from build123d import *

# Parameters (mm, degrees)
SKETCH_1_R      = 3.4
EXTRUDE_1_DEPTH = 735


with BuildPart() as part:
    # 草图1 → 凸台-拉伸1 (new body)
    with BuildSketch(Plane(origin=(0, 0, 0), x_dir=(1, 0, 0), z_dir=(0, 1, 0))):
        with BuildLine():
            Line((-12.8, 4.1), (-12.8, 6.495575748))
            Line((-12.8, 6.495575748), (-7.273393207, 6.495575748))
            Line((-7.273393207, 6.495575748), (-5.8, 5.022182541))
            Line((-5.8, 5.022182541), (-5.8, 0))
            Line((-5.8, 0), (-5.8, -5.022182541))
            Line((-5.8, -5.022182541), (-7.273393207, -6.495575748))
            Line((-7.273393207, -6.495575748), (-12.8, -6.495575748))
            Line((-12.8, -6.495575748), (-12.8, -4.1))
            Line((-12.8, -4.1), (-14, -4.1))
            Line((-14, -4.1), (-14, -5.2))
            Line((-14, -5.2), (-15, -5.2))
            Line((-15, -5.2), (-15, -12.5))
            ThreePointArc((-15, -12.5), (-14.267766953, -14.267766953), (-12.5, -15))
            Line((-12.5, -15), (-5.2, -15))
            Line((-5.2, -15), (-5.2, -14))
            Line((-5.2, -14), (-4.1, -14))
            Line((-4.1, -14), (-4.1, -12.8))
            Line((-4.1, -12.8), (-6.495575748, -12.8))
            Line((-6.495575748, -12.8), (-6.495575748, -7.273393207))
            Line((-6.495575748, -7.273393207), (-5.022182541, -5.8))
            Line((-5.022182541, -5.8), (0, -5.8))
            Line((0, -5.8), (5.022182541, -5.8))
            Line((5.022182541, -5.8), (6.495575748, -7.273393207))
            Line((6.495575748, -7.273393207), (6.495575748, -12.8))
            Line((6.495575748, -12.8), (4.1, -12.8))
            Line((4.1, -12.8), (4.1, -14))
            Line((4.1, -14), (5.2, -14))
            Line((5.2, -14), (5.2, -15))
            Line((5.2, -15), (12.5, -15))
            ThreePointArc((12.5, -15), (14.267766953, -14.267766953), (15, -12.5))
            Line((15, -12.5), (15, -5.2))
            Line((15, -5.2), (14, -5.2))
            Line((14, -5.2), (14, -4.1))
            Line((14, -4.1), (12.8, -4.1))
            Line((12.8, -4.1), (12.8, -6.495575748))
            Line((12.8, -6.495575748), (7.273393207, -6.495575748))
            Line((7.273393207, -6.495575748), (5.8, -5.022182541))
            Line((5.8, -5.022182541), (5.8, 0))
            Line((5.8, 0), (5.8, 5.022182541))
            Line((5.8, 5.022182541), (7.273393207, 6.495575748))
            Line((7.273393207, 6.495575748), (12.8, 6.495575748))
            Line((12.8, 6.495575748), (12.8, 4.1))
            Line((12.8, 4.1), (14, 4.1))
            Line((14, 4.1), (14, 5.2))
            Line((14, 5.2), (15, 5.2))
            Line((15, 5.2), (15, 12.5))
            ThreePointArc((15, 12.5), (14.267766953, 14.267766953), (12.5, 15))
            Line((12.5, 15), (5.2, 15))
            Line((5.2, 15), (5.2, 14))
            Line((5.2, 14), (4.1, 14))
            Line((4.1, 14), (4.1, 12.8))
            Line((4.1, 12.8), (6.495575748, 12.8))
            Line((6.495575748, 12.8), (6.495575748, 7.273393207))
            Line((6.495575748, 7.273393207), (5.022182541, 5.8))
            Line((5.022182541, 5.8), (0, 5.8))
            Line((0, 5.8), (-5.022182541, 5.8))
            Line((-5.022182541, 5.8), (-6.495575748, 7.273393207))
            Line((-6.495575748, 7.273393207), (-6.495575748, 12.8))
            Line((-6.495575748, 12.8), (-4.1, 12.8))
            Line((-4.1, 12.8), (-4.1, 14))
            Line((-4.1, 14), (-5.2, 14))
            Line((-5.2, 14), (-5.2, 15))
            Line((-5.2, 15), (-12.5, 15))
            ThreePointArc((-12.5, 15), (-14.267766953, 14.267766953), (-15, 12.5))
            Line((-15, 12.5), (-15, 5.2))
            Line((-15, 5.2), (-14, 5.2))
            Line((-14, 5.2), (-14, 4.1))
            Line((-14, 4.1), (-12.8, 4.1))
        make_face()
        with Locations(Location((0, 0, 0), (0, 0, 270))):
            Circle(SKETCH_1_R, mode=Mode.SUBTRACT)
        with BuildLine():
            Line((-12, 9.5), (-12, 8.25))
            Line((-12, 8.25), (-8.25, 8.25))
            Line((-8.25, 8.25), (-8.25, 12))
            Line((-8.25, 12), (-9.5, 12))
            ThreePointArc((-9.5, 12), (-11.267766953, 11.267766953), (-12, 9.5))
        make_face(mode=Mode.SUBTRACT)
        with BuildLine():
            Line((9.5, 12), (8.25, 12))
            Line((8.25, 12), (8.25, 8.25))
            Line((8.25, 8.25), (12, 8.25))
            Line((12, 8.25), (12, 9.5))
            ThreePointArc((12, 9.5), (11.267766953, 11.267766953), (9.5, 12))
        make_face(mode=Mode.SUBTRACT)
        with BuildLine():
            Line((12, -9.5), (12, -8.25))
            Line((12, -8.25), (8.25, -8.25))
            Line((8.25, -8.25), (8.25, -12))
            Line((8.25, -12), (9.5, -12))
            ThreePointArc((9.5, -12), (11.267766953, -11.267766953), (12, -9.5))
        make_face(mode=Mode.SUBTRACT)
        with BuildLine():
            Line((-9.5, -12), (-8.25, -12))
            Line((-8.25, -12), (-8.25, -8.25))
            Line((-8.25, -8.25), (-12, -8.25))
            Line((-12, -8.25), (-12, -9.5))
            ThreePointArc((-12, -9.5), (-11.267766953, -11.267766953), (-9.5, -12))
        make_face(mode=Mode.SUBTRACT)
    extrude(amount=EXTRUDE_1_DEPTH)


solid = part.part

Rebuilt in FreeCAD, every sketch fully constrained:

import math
import FreeCAD as App
import Part
import Sketcher
from FreeCAD import Vector

doc = App.newDocument("Part")
body = doc.addObject("PartDesign::Body", "Body")

sketch1 = doc.addObject("Sketcher::SketchObject", "Sketch")
body.addObject(sketch1)
sketch1.AttachmentSupport = (doc.XZ_Plane, [""])
sketch1.MapMode = "FlatFace"
sketch1.addGeometry([
    Part.LineSegment(Vector(-12.8, -4.1, 0), Vector(-12.8, -6.5, 0)),
    Part.LineSegment(Vector(-12.8, -6.5, 0), Vector(-7.3, -6.5, 0)),
    Part.LineSegment(Vector(-7.3, -6.5, 0), Vector(-5.8, -5, 0)),
    Part.LineSegment(Vector(-5.8, -5, 0), Vector(-5.8, 5, 0)),
    Part.LineSegment(Vector(-5.8, 5, 0), Vector(-7.3, 6.5, 0)),
    Part.LineSegment(Vector(-7.3, 6.5, 0), Vector(-12.8, 6.5, 0)),
    Part.LineSegment(Vector(-12.8, 6.5, 0), Vector(-12.8, 4.1, 0)),
    Part.LineSegment(Vector(-12.8, 4.1, 0), Vector(-14, 4.1, 0)),
    Part.LineSegment(Vector(-14, 4.1, 0), Vector(-14, 5.2, 0)),
    Part.LineSegment(Vector(-14, 5.2, 0), Vector(-15, 5.2, 0)),
    Part.LineSegment(Vector(-15, 5.2, 0), Vector(-15, 12.5, 0)),
    Part.ArcOfCircle(Part.Circle(Vector(-12.5, 12.5, 0), Vector(0, 0, 1), 2.5), math.radians(90), math.radians(180)),
    Part.LineSegment(Vector(-12.5, 15, 0), Vector(-5.2, 15, 0)),
    Part.LineSegment(Vector(-5.2, 15, 0), Vector(-5.2, 14, 0)),
    Part.LineSegment(Vector(-5.2, 14, 0), Vector(-4.1, 14, 0)),
    Part.LineSegment(Vector(-4.1, 14, 0), Vector(-4.1, 12.8, 0)),
    Part.LineSegment(Vector(-4.1, 12.8, 0), Vector(-6.5, 12.8, 0)),
    Part.LineSegment(Vector(-6.5, 12.8, 0), Vector(-6.5, 7.3, 0)),
    Part.LineSegment(Vector(-6.5, 7.3, 0), Vector(-5, 5.8, 0)),
    Part.LineSegment(Vector(-5, 5.8, 0), Vector(5, 5.8, 0)),
    Part.LineSegment(Vector(5, 5.8, 0), Vector(6.5, 7.3, 0)),
    Part.LineSegment(Vector(6.5, 7.3, 0), Vector(6.5, 12.8, 0)),
    Part.LineSegment(Vector(6.5, 12.8, 0), Vector(4.1, 12.8, 0)),
    Part.LineSegment(Vector(4.1, 12.8, 0), Vector(4.1, 14, 0)),
    Part.LineSegment(Vector(4.1, 14, 0), Vector(5.2, 14, 0)),
    Part.LineSegment(Vector(5.2, 14, 0), Vector(5.2, 15, 0)),
    Part.LineSegment(Vector(5.2, 15, 0), Vector(12.5, 15, 0)),
    Part.ArcOfCircle(Part.Circle(Vector(12.5, 12.5, 0), Vector(0, 0, 1), 2.5), math.radians(0), math.radians(90)),
    Part.LineSegment(Vector(15, 12.5, 0), Vector(15, 5.2, 0)),
    Part.LineSegment(Vector(15, 5.2, 0), Vector(14, 5.2, 0)),
    Part.LineSegment(Vector(14, 5.2, 0), Vector(14, 4.1, 0)),
    Part.LineSegment(Vector(14, 4.1, 0), Vector(12.8, 4.1, 0)),
    Part.LineSegment(Vector(12.8, 4.1, 0), Vector(12.8, 6.5, 0)),
    Part.LineSegment(Vector(12.8, 6.5, 0), Vector(7.3, 6.5, 0)),
    Part.LineSegment(Vector(7.3, 6.5, 0), Vector(5.8, 5, 0)),
    Part.LineSegment(Vector(5.8, 5, 0), Vector(5.8, -5, 0)),
    Part.LineSegment(Vector(5.8, -5, 0), Vector(7.3, -6.5, 0)),
    Part.LineSegment(Vector(7.3, -6.5, 0), Vector(12.8, -6.5, 0)),
    Part.LineSegment(Vector(12.8, -6.5, 0), Vector(12.8, -4.1, 0)),
    Part.LineSegment(Vector(12.8, -4.1, 0), Vector(14, -4.1, 0)),
    Part.LineSegment(Vector(14, -4.1, 0), Vector(14, -5.2, 0)),
    Part.LineSegment(Vector(14, -5.2, 0), Vector(15, -5.2, 0)),
    Part.LineSegment(Vector(15, -5.2, 0), Vector(15, -12.5, 0)),
    Part.ArcOfCircle(Part.Circle(Vector(12.5, -12.5, 0), Vector(0, 0, 1), 2.5), math.radians(-90), math.radians(0)),
    Part.LineSegment(Vector(12.5, -15, 0), Vector(5.2, -15, 0)),
    Part.LineSegment(Vector(5.2, -15, 0), Vector(5.2, -14, 0)),
    Part.LineSegment(Vector(5.2, -14, 0), Vector(4.1, -14, 0)),
    Part.LineSegment(Vector(4.1, -14, 0), Vector(4.1, -12.8, 0)),
    Part.LineSegment(Vector(4.1, -12.8, 0), Vector(6.5, -12.8, 0)),
    Part.LineSegment(Vector(6.5, -12.8, 0), Vector(6.5, -7.3, 0)),
    Part.LineSegment(Vector(6.5, -7.3, 0), Vector(5, -5.8, 0)),
    Part.LineSegment(Vector(5, -5.8, 0), Vector(-5, -5.8, 0)),
    Part.LineSegment(Vector(-5, -5.8, 0), Vector(-6.5, -7.3, 0)),
    Part.LineSegment(Vector(-6.5, -7.3, 0), Vector(-6.5, -12.8, 0)),
    Part.LineSegment(Vector(-6.5, -12.8, 0), Vector(-4.1, -12.8, 0)),
    Part.LineSegment(Vector(-4.1, -12.8, 0), Vector(-4.1, -14, 0)),
    Part.LineSegment(Vector(-4.1, -14, 0), Vector(-5.2, -14, 0)),
    Part.LineSegment(Vector(-5.2, -14, 0), Vector(-5.2, -15, 0)),
    Part.LineSegment(Vector(-5.2, -15, 0), Vector(-12.5, -15, 0)),
    Part.ArcOfCircle(Part.Circle(Vector(-12.5, -12.5, 0), Vector(0, 0, 1), 2.5), math.radians(180), math.radians(270)),
    Part.LineSegment(Vector(-15, -12.5, 0), Vector(-15, -5.2, 0)),
    Part.LineSegment(Vector(-15, -5.2, 0), Vector(-14, -5.2, 0)),
    Part.LineSegment(Vector(-14, -5.2, 0), Vector(-14, -4.1, 0)),
    Part.LineSegment(Vector(-14, -4.1, 0), Vector(-12.8, -4.1, 0)),
    Part.LineSegment(Vector(-8.2, 12, 0), Vector(-9.5, 12, 0)),
    Part.ArcOfCircle(Part.Circle(Vector(-9.5, 9.5, 0), Vector(0, 0, 1), 2.5), math.radians(90), math.radians(180)),
    Part.LineSegment(Vector(-12, 9.5, 0), Vector(-12, 8.2, 0)),
    Part.LineSegment(Vector(-12, 8.2, 0), Vector(-8.2, 8.2, 0)),
    Part.LineSegment(Vector(-8.2, 8.2, 0), Vector(-8.2, 12, 0)),
    Part.LineSegment(Vector(12, 8.2, 0), Vector(12, 9.5, 0)),
    Part.ArcOfCircle(Part.Circle(Vector(9.5, 9.5, 0), Vector(0, 0, 1), 2.5), math.radians(0), math.radians(90)),
    Part.LineSegment(Vector(9.5, 12, 0), Vector(8.2, 12, 0)),
    Part.LineSegment(Vector(8.2, 12, 0), Vector(8.2, 8.2, 0)),
    Part.LineSegment(Vector(8.2, 8.2, 0), Vector(12, 8.2, 0)),
    Part.LineSegment(Vector(-12, -8.2, 0), Vector(-12, -9.5, 0)),
    Part.ArcOfCircle(Part.Circle(Vector(-9.5, -9.5, 0), Vector(0, 0, 1), 2.5), math.radians(180), math.radians(270)),
    Part.LineSegment(Vector(-9.5, -12, 0), Vector(-8.2, -12, 0)),
    Part.LineSegment(Vector(-8.2, -12, 0), Vector(-8.2, -8.2, 0)),
    Part.LineSegment(Vector(-8.2, -8.2, 0), Vector(-12, -8.2, 0)),
    Part.Circle(Vector(0, 0, 0), Vector(0, 0, 1), 3.4),
    Part.LineSegment(Vector(8.2, -12, 0), Vector(9.5, -12, 0)),
    Part.ArcOfCircle(Part.Circle(Vector(9.5, -9.5, 0), Vector(0, 0, 1), 2.5), math.radians(-90), math.radians(0)),
    Part.LineSegment(Vector(12, -9.5, 0), Vector(12, -8.2, 0)),
    Part.LineSegment(Vector(12, -8.2, 0), Vector(8.2, -8.2, 0)),
    Part.LineSegment(Vector(8.2, -8.2, 0), Vector(8.2, -12, 0)),
], False)
sketch1.addConstraint([
    Sketcher.Constraint("Coincident", 0, 2, 1, 1),
    Sketcher.Constraint("Coincident", 1, 2, 2, 1),
    Sketcher.Constraint("Coincident", 2, 2, 3, 1),
    Sketcher.Constraint("Coincident", 3, 2, 4, 1),
    Sketcher.Constraint("Coincident", 4, 2, 5, 1),
    Sketcher.Constraint("Coincident", 5, 2, 6, 1),
    Sketcher.Constraint("Coincident", 6, 2, 7, 1),
    Sketcher.Constraint("Coincident", 7, 2, 8, 1),
    Sketcher.Constraint("Coincident", 8, 2, 9, 1),
    Sketcher.Constraint("Coincident", 9, 2, 10, 1),
    Sketcher.Constraint("Tangent", 10, 2, 11, 2),
    Sketcher.Constraint("Tangent", 11, 1, 12, 1),
    Sketcher.Constraint("Coincident", 12, 2, 13, 1),
    Sketcher.Constraint("Coincident", 13, 2, 14, 1),
    Sketcher.Constraint("Coincident", 14, 2, 15, 1),
    Sketcher.Constraint("Coincident", 15, 2, 16, 1),
    Sketcher.Constraint("Coincident", 16, 2, 17, 1),
    Sketcher.Constraint("Coincident", 17, 2, 18, 1),
    Sketcher.Constraint("Coincident", 18, 2, 19, 1),
    Sketcher.Constraint("Coincident", 19, 2, 20, 1),
    Sketcher.Constraint("Coincident", 20, 2, 21, 1),
    Sketcher.Constraint("Coincident", 21, 2, 22, 1),
    Sketcher.Constraint("Coincident", 22, 2, 23, 1),
    Sketcher.Constraint("Coincident", 23, 2, 24, 1),
    Sketcher.Constraint("Coincident", 24, 2, 25, 1),
    Sketcher.Constraint("Coincident", 25, 2, 26, 1),
    Sketcher.Constraint("Tangent", 26, 2, 27, 2),
    Sketcher.Constraint("Tangent", 27, 1, 28, 1),
    Sketcher.Constraint("Coincident", 28, 2, 29, 1),
    Sketcher.Constraint("Coincident", 29, 2, 30, 1),
    Sketcher.Constraint("Coincident", 30, 2, 31, 1),
    Sketcher.Constraint("Coincident", 31, 2, 32, 1),
    Sketcher.Constraint("Coincident", 32, 2, 33, 1),
    Sketcher.Constraint("Coincident", 33, 2, 34, 1),
    Sketcher.Constraint("Coincident", 34, 2, 35, 1),
    Sketcher.Constraint("Coincident", 35, 2, 36, 1),
    Sketcher.Constraint("Coincident", 36, 2, 37, 1),
    Sketcher.Constraint("Coincident", 37, 2, 38, 1),
    Sketcher.Constraint("Coincident", 38, 2, 39, 1),
    Sketcher.Constraint("Coincident", 39, 2, 40, 1),
    Sketcher.Constraint("Coincident", 40, 2, 41, 1),
    Sketcher.Constraint("Coincident", 41, 2, 42, 1),
    Sketcher.Constraint("Tangent", 42, 2, 43, 2),
    Sketcher.Constraint("Tangent", 43, 1, 44, 1),
    Sketcher.Constraint("Coincident", 44, 2, 45, 1),
    Sketcher.Constraint("Coincident", 45, 2, 46, 1),
    Sketcher.Constraint("Coincident", 46, 2, 47, 1),
    Sketcher.Constraint("Coincident", 47, 2, 48, 1),
    Sketcher.Constraint("Coincident", 48, 2, 49, 1),
    Sketcher.Constraint("Coincident", 49, 2, 50, 1),
    Sketcher.Constraint("Coincident", 50, 2, 51, 1),
    Sketcher.Constraint("Coincident", 51, 2, 52, 1),
    Sketcher.Constraint("Coincident", 52, 2, 53, 1),
    Sketcher.Constraint("Coincident", 53, 2, 54, 1),
    Sketcher.Constraint("Coincident", 54, 2, 55, 1),
    Sketcher.Constraint("Coincident", 55, 2, 56, 1),
    Sketcher.Constraint("Coincident", 56, 2, 57, 1),
    Sketcher.Constraint("Coincident", 57, 2, 58, 1),
    Sketcher.Constraint("Tangent", 58, 2, 59, 2),
    Sketcher.Constraint("Tangent", 59, 1, 60, 1),
    Sketcher.Constraint("Coincident", 60, 2, 61, 1),
    Sketcher.Constraint("Coincident", 61, 2, 62, 1),
    Sketcher.Constraint("Coincident", 62, 2, 63, 1),
    Sketcher.Constraint("Coincident", 63, 2, 0, 1),
    Sketcher.Constraint("Tangent", 64, 2, 65, 1),
    Sketcher.Constraint("Tangent", 65, 2, 66, 1),
    Sketcher.Constraint("Coincident", 66, 2, 67, 1),
    Sketcher.Constraint("Coincident", 67, 2, 68, 1),
    Sketcher.Constraint("Coincident", 68, 2, 64, 1),
    Sketcher.Constraint("Tangent", 69, 2, 70, 1),
    Sketcher.Constraint("Tangent", 70, 2, 71, 1),
    Sketcher.Constraint("Coincident", 71, 2, 72, 1),
    Sketcher.Constraint("Coincident", 72, 2, 73, 1),
    Sketcher.Constraint("Coincident", 73, 2, 69, 1),
    Sketcher.Constraint("Tangent", 74, 2, 75, 1),
    Sketcher.Constraint("Tangent", 75, 2, 76, 1),
    Sketcher.Constraint("Coincident", 76, 2, 77, 1),
    Sketcher.Constraint("Coincident", 77, 2, 78, 1),
    Sketcher.Constraint("Coincident", 78, 2, 74, 1),
    Sketcher.Constraint("Tangent", 80, 2, 81, 1),
    Sketcher.Constraint("Tangent", 81, 2, 82, 1),
    Sketcher.Constraint("Coincident", 82, 2, 83, 1),
    Sketcher.Constraint("Coincident", 83, 2, 84, 1),
    Sketcher.Constraint("Coincident", 84, 2, 80, 1),
    Sketcher.Constraint("Vertical", 0),
    Sketcher.Constraint("Horizontal", 1),
    Sketcher.Constraint("Vertical", 3),
    Sketcher.Constraint("Horizontal", 5),
    Sketcher.Constraint("Vertical", 6),
    Sketcher.Constraint("Horizontal", 7),
    Sketcher.Constraint("Vertical", 8),
    Sketcher.Constraint("Horizontal", 9),
    Sketcher.Constraint("Vertical", 10),
    Sketcher.Constraint("Horizontal", 12),
    Sketcher.Constraint("Vertical", 13),
    Sketcher.Constraint("Horizontal", 14),
    Sketcher.Constraint("Vertical", 15),
    Sketcher.Constraint("Horizontal", 16),
    Sketcher.Constraint("Vertical", 17),
    Sketcher.Constraint("Horizontal", 19),
    Sketcher.Constraint("Vertical", 21),
    Sketcher.Constraint("Horizontal", 22),
    Sketcher.Constraint("Vertical", 23),
    Sketcher.Constraint("Horizontal", 24),
    Sketcher.Constraint("Vertical", 25),
    Sketcher.Constraint("Horizontal", 26),
    Sketcher.Constraint("Vertical", 28),
    Sketcher.Constraint("Horizontal", 29),
    Sketcher.Constraint("Vertical", 30),
    Sketcher.Constraint("Horizontal", 31),
    Sketcher.Constraint("Vertical", 32),
    Sketcher.Constraint("Horizontal", 33),
    Sketcher.Constraint("Vertical", 35),
    Sketcher.Constraint("Horizontal", 37),
    Sketcher.Constraint("Vertical", 38),
    Sketcher.Constraint("Horizontal", 39),
    Sketcher.Constraint("Vertical", 40),
    Sketcher.Constraint("Horizontal", 41),
    Sketcher.Constraint("Vertical", 42),
    Sketcher.Constraint("Horizontal", 44),
    Sketcher.Constraint("Vertical", 45),
    Sketcher.Constraint("Horizontal", 46),
    Sketcher.Constraint("Vertical", 47),
    Sketcher.Constraint("Horizontal", 48),
    Sketcher.Constraint("Vertical", 49),
    Sketcher.Constraint("Horizontal", 51),
    Sketcher.Constraint("Vertical", 53),
    Sketcher.Constraint("Horizontal", 54),
    Sketcher.Constraint("Vertical", 55),
    Sketcher.Constraint("Horizontal", 56),
    Sketcher.Constraint("Vertical", 57),
    Sketcher.Constraint("Horizontal", 58),
    Sketcher.Constraint("Vertical", 60),
    Sketcher.Constraint("Horizontal", 61),
    Sketcher.Constraint("Vertical", 62),
    Sketcher.Constraint("Horizontal", 63),
    Sketcher.Constraint("Horizontal", 64),
    Sketcher.Constraint("Vertical", 66),
    Sketcher.Constraint("Horizontal", 67),
    Sketcher.Constraint("Vertical", 68),
    Sketcher.Constraint("Vertical", 69),
    Sketcher.Constraint("Horizontal", 71),
    Sketcher.Constraint("Vertical", 72),
    Sketcher.Constraint("Horizontal", 73),
    Sketcher.Constraint("Vertical", 74),
    Sketcher.Constraint("Horizontal", 76),
    Sketcher.Constraint("Vertical", 77),
    Sketcher.Constraint("Horizontal", 78),
    Sketcher.Constraint("Horizontal", 80),
    Sketcher.Constraint("Vertical", 82),
    Sketcher.Constraint("Horizontal", 83),
    Sketcher.Constraint("Vertical", 84),
    Sketcher.Constraint("Coincident", 79, 3, -1, 1),
    Sketcher.Constraint("Equal", 11, 27),
    Sketcher.Constraint("Equal", 27, 43),
    Sketcher.Constraint("Equal", 43, 59),
    Sketcher.Constraint("Equal", 59, 65),
    Sketcher.Constraint("Equal", 65, 70),
    Sketcher.Constraint("Equal", 70, 75),
    Sketcher.Constraint("Equal", 75, 81),
    Sketcher.Constraint("Symmetric", 11, 3, 43, 3, -1, 1),
    Sketcher.Constraint("Symmetric", 27, 3, 59, 3, -1, 1),
    Sketcher.Constraint("Symmetric", 70, 3, 75, 3, -1, 1),
    Sketcher.Constraint("Symmetric", 65, 3, 81, 3, -1, 1),
    Sketcher.Constraint("Symmetric", 0, 2, 32, 2, -1, 1),
    Sketcher.Constraint("Symmetric", 2, 2, 34, 2, -1, 1),
    Sketcher.Constraint("Symmetric", 4, 2, 36, 2, -1, 1),
    Sketcher.Constraint("Symmetric", 6, 2, 38, 2, -1, 1),
    Sketcher.Constraint("Symmetric", 8, 2, 40, 2, -1, 1),
    Sketcher.Constraint("Symmetric", 13, 2, 45, 2, -1, 1),
    Sketcher.Constraint("Symmetric", 15, 2, 47, 2, -1, 1),
    Sketcher.Constraint("Symmetric", 17, 2, 49, 2, -1, 1),
    Sketcher.Constraint("Symmetric", 18, 2, 50, 2, -1, 1),
    Sketcher.Constraint("Symmetric", 20, 2, 52, 2, -1, 1),
    Sketcher.Constraint("Symmetric", 22, 2, 54, 2, -1, 1),
    Sketcher.Constraint("Symmetric", 24, 2, 56, 2, -1, 1),
    Sketcher.Constraint("Symmetric", 29, 2, 61, 2, -1, 1),
    Sketcher.Constraint("Symmetric", 72, 2, 77, 2, -1, 1),
    Sketcher.Constraint("Symmetric", 67, 2, 83, 2, -1, 1),
    Sketcher.Constraint("Symmetric", 11, 3, 27, 3, -2),
    Sketcher.Constraint("Symmetric", 65, 3, 70, 3, -2),
    Sketcher.Constraint("Symmetric", 17, 2, 20, 2, -2),
    Sketcher.Constraint("Symmetric", 15, 2, 22, 2, -2),
    Sketcher.Constraint("Symmetric", 13, 2, 24, 2, -2),
    Sketcher.Constraint("Symmetric", 8, 2, 29, 2, -2),
    Sketcher.Constraint("Symmetric", 6, 2, 31, 2, -2),
    Sketcher.Constraint("Symmetric", 4, 2, 33, 2, -2),
    Sketcher.Constraint("Symmetric", 67, 2, 72, 2, -2),
    Sketcher.Constraint("Perpendicular", 2, 4),
    Sketcher.Constraint("Parallel", 4, 18),
    Sketcher.Constraint("Perpendicular", 18, 20),
    Sketcher.Constraint("Parallel", 20, 34),
    Sketcher.Constraint("Perpendicular", 34, 36),
    Sketcher.Constraint("Perpendicular", 50, 52),
    Sketcher.Constraint("Horizontal", 3, 2, 34, 2),
    Sketcher.Constraint("Horizontal", 39, 2, 62, 2),
    Sketcher.Constraint("Equal", 54, 0),
    Sketcher.Constraint("Equal", 51, 3),
    Sketcher.Constraint("Equal", 56, 8),
    Sketcher.Constraint("Equal", 58, 10),
    Sketcher.Constraint("Equal", 61, 13),
    Sketcher.Constraint("Equal", 63, 15),
    Sketcher.Constraint("Equal", 37, 17),
    Sketcher.Constraint("Equal", 80, 66),
    Sketcher.Constraint("Equal", 4, 18),
    Sketcher.Constraint("Diameter", 79, 6.8),
    Sketcher.Constraint("Radius", 11, 2.5),
    Sketcher.Constraint("DistanceX", 9, 2, 9, 1, 1.0),
    Sketcher.Constraint("DistanceX", 7, 2, 7, 1, 1.2),
    Sketcher.Constraint("DistanceX", 12, 1, 12, 2, 7.3),
    Sketcher.Constraint("DistanceX", 14, 1, 14, 2, 1.1),
    Sketcher.Constraint("DistanceX", 7, 2, -1, 1, 14.0),
    Sketcher.Constraint("DistanceY", -1, 1, 64, 2, 12.0),
    Sketcher.Constraint("DistanceX", 65, 2, -1, 1, 12.0),
    Sketcher.Constraint("DistanceX", 64, 2, 64, 1, 1.25),
    Sketcher.Constraint("DistanceX", 2, 2, -1, 1, 5.8),
    Sketcher.Constraint("DistanceX", 1, 1, 1, 2, 5.526607),
    Sketcher.Constraint("DistanceX", 16, 2, 16, 1, 2.395576),
])
pad1 = doc.addObject("PartDesign::Pad", "Pad")
body.addObject(pad1)
pad1.Profile = sketch1
pad1.Length = 735
pad1.Reversed = True

doc.recompute()
